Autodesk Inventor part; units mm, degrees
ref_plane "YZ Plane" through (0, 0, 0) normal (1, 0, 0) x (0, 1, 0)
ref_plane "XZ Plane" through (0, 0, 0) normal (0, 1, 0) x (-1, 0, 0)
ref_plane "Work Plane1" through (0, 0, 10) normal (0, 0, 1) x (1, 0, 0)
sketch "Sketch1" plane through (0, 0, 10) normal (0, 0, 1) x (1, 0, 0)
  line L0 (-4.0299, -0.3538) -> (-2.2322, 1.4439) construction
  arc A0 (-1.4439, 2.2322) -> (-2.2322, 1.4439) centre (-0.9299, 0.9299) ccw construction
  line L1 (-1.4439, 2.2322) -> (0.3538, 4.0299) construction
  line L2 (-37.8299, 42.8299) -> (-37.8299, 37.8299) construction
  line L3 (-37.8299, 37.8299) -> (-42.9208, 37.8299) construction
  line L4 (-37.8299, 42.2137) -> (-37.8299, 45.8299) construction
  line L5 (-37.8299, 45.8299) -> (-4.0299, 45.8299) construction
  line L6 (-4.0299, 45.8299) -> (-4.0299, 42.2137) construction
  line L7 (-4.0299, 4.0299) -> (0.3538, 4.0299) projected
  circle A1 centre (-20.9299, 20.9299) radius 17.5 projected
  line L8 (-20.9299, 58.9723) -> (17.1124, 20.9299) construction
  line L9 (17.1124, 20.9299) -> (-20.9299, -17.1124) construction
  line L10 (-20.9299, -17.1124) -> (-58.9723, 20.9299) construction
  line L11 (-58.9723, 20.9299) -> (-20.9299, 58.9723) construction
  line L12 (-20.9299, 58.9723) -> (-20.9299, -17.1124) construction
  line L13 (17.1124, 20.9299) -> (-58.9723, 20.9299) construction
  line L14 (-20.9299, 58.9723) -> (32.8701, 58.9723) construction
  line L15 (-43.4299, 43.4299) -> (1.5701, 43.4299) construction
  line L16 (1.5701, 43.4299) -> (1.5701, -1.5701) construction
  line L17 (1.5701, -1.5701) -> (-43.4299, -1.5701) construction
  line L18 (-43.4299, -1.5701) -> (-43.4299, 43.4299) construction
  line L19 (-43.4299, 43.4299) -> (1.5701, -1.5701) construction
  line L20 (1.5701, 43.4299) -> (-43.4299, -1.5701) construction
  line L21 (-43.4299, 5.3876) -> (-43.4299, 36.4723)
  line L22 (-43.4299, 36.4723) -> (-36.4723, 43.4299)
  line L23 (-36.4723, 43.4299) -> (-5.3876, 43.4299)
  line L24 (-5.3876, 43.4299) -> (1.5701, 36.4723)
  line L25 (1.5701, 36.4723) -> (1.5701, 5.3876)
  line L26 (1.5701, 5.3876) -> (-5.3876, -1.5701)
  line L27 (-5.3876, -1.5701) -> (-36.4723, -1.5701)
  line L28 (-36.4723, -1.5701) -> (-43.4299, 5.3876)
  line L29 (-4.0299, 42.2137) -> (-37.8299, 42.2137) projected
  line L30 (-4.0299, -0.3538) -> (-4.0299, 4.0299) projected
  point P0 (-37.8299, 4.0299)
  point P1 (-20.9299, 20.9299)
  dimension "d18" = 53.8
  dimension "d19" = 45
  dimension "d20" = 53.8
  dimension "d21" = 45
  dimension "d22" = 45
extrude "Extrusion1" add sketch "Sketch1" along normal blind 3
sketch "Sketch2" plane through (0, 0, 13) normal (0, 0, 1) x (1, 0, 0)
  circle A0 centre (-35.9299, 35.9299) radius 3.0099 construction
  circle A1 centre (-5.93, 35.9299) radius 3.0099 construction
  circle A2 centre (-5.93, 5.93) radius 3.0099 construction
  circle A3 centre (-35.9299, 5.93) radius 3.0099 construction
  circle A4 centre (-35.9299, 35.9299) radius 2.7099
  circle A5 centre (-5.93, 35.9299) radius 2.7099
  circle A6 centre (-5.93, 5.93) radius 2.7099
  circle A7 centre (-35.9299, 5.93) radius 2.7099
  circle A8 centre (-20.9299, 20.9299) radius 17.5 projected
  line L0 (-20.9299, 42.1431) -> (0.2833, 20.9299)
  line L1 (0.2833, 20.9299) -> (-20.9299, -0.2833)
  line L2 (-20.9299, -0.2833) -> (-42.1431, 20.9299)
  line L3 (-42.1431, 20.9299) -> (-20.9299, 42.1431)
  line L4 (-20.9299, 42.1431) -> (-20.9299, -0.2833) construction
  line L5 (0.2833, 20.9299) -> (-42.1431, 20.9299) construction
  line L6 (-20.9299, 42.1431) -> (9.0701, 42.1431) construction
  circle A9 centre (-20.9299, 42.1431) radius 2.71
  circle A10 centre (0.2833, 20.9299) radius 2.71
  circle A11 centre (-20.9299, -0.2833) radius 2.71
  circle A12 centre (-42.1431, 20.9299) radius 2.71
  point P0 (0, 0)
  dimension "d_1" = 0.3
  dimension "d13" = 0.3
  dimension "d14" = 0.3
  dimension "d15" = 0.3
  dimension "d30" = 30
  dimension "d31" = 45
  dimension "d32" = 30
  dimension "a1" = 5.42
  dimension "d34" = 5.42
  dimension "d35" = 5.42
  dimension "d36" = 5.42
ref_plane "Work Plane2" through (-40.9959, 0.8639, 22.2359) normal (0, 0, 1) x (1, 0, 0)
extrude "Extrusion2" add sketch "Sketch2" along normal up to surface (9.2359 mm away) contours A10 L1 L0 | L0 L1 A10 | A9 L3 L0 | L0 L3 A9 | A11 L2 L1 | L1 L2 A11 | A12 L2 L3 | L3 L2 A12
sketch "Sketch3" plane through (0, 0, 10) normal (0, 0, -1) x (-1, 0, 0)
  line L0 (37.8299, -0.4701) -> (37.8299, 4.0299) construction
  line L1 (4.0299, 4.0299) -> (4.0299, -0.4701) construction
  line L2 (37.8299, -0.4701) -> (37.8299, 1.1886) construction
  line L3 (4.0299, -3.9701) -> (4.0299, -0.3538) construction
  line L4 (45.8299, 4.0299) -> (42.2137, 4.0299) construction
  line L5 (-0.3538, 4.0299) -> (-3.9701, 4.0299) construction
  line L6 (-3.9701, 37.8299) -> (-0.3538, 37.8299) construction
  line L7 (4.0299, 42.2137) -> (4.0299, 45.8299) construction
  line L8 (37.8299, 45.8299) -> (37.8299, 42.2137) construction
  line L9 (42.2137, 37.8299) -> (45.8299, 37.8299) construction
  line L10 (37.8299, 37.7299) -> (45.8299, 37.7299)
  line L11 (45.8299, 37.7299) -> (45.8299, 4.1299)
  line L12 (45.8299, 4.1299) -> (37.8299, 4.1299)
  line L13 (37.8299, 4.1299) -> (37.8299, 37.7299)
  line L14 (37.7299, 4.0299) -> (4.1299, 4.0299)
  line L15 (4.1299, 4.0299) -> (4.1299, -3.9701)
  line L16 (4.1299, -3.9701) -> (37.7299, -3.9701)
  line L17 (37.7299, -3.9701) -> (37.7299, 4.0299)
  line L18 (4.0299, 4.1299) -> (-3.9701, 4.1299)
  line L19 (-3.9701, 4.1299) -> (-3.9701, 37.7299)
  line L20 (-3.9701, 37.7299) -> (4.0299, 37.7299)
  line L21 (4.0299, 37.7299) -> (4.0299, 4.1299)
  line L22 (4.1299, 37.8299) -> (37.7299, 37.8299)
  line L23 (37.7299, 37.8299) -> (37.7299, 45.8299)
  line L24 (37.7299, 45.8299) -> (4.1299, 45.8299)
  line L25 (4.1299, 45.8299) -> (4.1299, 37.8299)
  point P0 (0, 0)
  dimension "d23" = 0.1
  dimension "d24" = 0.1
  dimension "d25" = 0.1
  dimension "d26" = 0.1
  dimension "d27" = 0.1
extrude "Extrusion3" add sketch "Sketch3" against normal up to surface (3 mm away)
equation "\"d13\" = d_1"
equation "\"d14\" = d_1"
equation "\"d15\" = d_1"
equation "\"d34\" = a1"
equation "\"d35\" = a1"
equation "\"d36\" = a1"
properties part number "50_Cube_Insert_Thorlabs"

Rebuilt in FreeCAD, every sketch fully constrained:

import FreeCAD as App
import Part
import Sketcher

doc = App.newDocument("Part")
params = doc.addObject("Spreadsheet::Sheet", "Params")
for row, (alias, value) in enumerate([
    ("sketch1_diameter", "35 mm"),
    ("pad1_length", "3 mm"),
    ("sketch2_diameter", "5.42 mm"),
    ("pad2_length", "9.2359 mm"),
    ("sketch3_width", "8 mm"),
    ("sketch3_width2", "33.6 mm"),
    ("pad3_length", "3 mm"),
], start=1):
    params.set(f"A{row}", alias)
    params.set(f"B{row}", "=" + value)
    params.setAlias(f"B{row}", alias)

body = doc.addObject("PartDesign::Body", "Body")

sketch1 = doc.addObject("Sketcher::SketchObject", "Sketch")
body.addObject(sketch1)
sketch1.AttachmentSupport = (doc.XY_Plane, [""])
sketch1.MapMode = "FlatFace"
sketch1.AttachmentOffset = App.Placement(App.Vector(0, 0, 10), App.Rotation())
sketch1.addGeometry([
    Part.LineSegment(App.Vector(-5.3876, -1.5701, 0), App.Vector(1.5701, 5.3876, 0)),
    Part.LineSegment(App.Vector(1.5701, 5.3876, 0), App.Vector(1.5701, 36.4723, 0)),
    Part.LineSegment(App.Vector(1.5701, 36.4723, 0), App.Vector(-5.3876, 43.4299, 0)),
    Part.LineSegment(App.Vector(-5.3876, 43.4299, 0), App.Vector(-36.4723, 43.4299, 0)),
    Part.LineSegment(App.Vector(-36.4723, 43.4299, 0), App.Vector(-43.4299, 36.4723, 0)),
    Part.LineSegment(App.Vector(-43.4299, 36.4723, 0), App.Vector(-43.4299, 5.3876, 0)),
    Part.LineSegment(App.Vector(-43.4299, 5.3876, 0), App.Vector(-36.4723, -1.5701, 0)),
    Part.LineSegment(App.Vector(-36.4723, -1.5701, 0), App.Vector(-5.3876, -1.5701, 0)),
    Part.Circle(App.Vector(-20.9299, 20.9299, 0), App.Vector(0, 0, 1), 17.5),
], False)
sketch1.addConstraint([
    Sketcher.Constraint("Coincident", 0, 2, 1, 1),
    Sketcher.Constraint("Coincident", 1, 2, 2, 1),
    Sketcher.Constraint("Coincident", 2, 2, 3, 1),
    Sketcher.Constraint("Coincident", 3, 2, 4, 1),
    Sketcher.Constraint("Coincident", 4, 2, 5, 1),
    Sketcher.Constraint("Coincident", 5, 2, 6, 1),
    Sketcher.Constraint("Coincident", 6, 2, 7, 1),
    Sketcher.Constraint("Coincident", 7, 2, 0, 1),
    Sketcher.Constraint("Vertical", 1),
    Sketcher.Constraint("Horizontal", 3),
    Sketcher.Constraint("Vertical", 5),
    Sketcher.Constraint("Horizontal", 7),
    Sketcher.Constraint("Perpendicular", 0, 2),
    Sketcher.Constraint("Perpendicular", 2, 4),
    Sketcher.Constraint("Perpendicular", 4, 6),
    Sketcher.Constraint("Horizontal", 1, 2, 4, 2),
    Sketcher.Constraint("Horizontal", 0, 2, 5, 2),
    Sketcher.Constraint("Vertical", 3, 2, 6, 2),
    Sketcher.Constraint("Vertical", 2, 2, 7, 2),
    Sketcher.Constraint("Equal", 7, 1),
    Sketcher.Constraint("Diameter", 8, 35.0),
    Sketcher.Constraint("DistanceX", 4, 2, 1, 2, 45.0),
    Sketcher.Constraint("DistanceX", 8, 3, 0, 2, 22.5),
    Sketcher.Constraint("DistanceY", 8, 3, 2, 2, 22.5),
    Sketcher.Constraint("DistanceX", 8, 3, -1, 1, 20.93),
    Sketcher.Constraint("DistanceY", -1, 1, 8, 3, 20.93),
    Sketcher.Constraint("DistanceX", 3, 2, 3, 1, 31.0847),
])
sketch1.setExpression("Constraints[20]", "Params.sketch1_diameter")
pad1 = doc.addObject("PartDesign::Pad", "Pad")
body.addObject(pad1)
pad1.Profile = sketch1
pad1.setExpression("Length", "Params.pad1_length")

sketch2 = doc.addObject("Sketcher::SketchObject", "Sketch001")
body.addObject(sketch2)
sketch2.AttachmentSupport = (doc.XY_Plane, [""])
sketch2.MapMode = "FlatFace"
sketch2.AttachmentOffset = App.Placement(App.Vector(0, 0, 13), App.Rotation())
sketch2.addGeometry([
    Part.Circle(App.Vector(0.2833, 20.9299, 0), App.Vector(0, 0, 1), 2.71),
    Part.Circle(App.Vector(-20.9299, 42.1431, 0), App.Vector(0, 0, 1), 2.71),
    Part.Circle(App.Vector(-20.9299, -0.2833, 0), App.Vector(0, 0, 1), 2.71),
    Part.Circle(App.Vector(-42.1431, 20.9299, 0), App.Vector(0, 0, 1), 2.71),
], False)
sketch2.addConstraint([
    Sketcher.Constraint("Equal", 0, 1),
    Sketcher.Constraint("Equal", 1, 2),
    Sketcher.Constraint("Equal", 2, 3),
    Sketcher.Constraint("Horizontal", 0, 3, 3, 3),
    Sketcher.Constraint("Vertical", 1, 3, 2, 3),
    Sketcher.Constraint("Diameter", 0, 5.42),
    Sketcher.Constraint("DistanceY", -1, 1, 0, 3, 20.93),
    Sketcher.Constraint("DistanceX", 1, 3, -1, 1, 20.93),
    Sketcher.Constraint("DistanceY", -1, 1, 1, 3, 42.143),
    Sketcher.Constraint("DistanceX", 3, 3, -1, 1, 42.143),
    Sketcher.Constraint("DistanceX", -1, 1, 0, 3, 0.2833),
    Sketcher.Constraint("DistanceY", 2, 3, -1, 1, 0.2833),
])
sketch2.setExpression("Constraints[5]", "Params.sketch2_diameter")
pad2 = doc.addObject("PartDesign::Pad", "Pad001")
body.addObject(pad2)
pad2.Profile = sketch2
pad2.setExpression("Length", "Params.pad2_length")

sketch3 = doc.addObject("Sketcher::SketchObject", "Sketch002")
body.addObject(sketch3)
sketch3.AttachmentSupport = (doc.XY_Plane, [""])
sketch3.MapMode = "FlatFace"
sketch3.AttachmentOffset = App.Placement(App.Vector(0, 0, 10), App.Rotation())
sketch3.addGeometry([
    Part.LineSegment(App.Vector(-45.8299, 37.7299, 0), App.Vector(-37.8299, 37.7299, 0)),
    Part.LineSegment(App.Vector(-37.8299, 37.7299, 0), App.Vector(-37.8299, 4.1299, 0)),
    Part.LineSegment(App.Vector(-37.8299, 4.1299, 0), App.Vector(-45.8299, 4.1299, 0)),
    Part.LineSegment(App.Vector(-45.8299, 4.1299, 0), App.Vector(-45.8299, 37.7299, 0)),
    Part.LineSegment(App.Vector(-37.7299, -3.9701, 0), App.Vector(-37.7299, 4.0299, 0)),
    Part.LineSegment(App.Vector(-37.7299, 4.0299, 0), App.Vector(-4.1299, 4.0299, 0)),
    Part.LineSegment(App.Vector(-4.1299, 4.0299, 0), App.Vector(-4.1299, -3.9701, 0)),
    Part.LineSegment(App.Vector(-4.1299, -3.9701, 0), App.Vector(-37.7299, -3.9701, 0)),
    Part.LineSegment(App.Vector(3.9701, 4.1299, 0), App.Vector(-4.0299, 4.1299, 0)),
    Part.LineSegment(App.Vector(-4.0299, 4.1299, 0), App.Vector(-4.0299, 37.7299, 0)),
    Part.LineSegment(App.Vector(-4.0299, 37.7299, 0), App.Vector(3.9701, 37.7299, 0)),
    Part.LineSegment(App.Vector(3.9701, 37.7299, 0), App.Vector(3.9701, 4.1299, 0)),
    Part.LineSegment(App.Vector(-4.1299, 45.8299, 0), App.Vector(-4.1299, 37.8299, 0)),
    Part.LineSegment(App.Vector(-4.1299, 37.8299, 0), App.Vector(-37.7299, 37.8299, 0)),
    Part.LineSegment(App.Vector(-37.7299, 37.8299, 0), App.Vector(-37.7299, 45.8299, 0)),
    Part.LineSegment(App.Vector(-37.7299, 45.8299, 0), App.Vector(-4.1299, 45.8299, 0)),
], False)
sketch3.addConstraint([
    Sketcher.Constraint("Coincident", 0, 2, 1, 1),
    Sketcher.Constraint("Coincident", 1, 2, 2, 1),
    Sketcher.Constraint("Coincident", 2, 2, 3, 1),
    Sketcher.Constraint("Coincident", 3, 2, 0, 1),
    Sketcher.Constraint("Coincident", 4, 2, 5, 1),
    Sketcher.Constraint("Coincident", 5, 2, 6, 1),
    Sketcher.Constraint("Coincident", 6, 2, 7, 1),
    Sketcher.Constraint("Coincident", 7, 2, 4, 1),
    Sketcher.Constraint("Coincident", 8, 2, 9, 1),
    Sketcher.Constraint("Coincident", 9, 2, 10, 1),
    Sketcher.Constraint("Coincident", 10, 2, 11, 1),
    Sketcher.Constraint("Coincident", 11, 2, 8, 1),
    Sketcher.Constraint("Coincident", 12, 2, 13, 1),
    Sketcher.Constraint("Coincident", 13, 2, 14, 1),
    Sketcher.Constraint("Coincident", 14, 2, 15, 1),
    Sketcher.Constraint("Coincident", 15, 2, 12, 1),
    Sketcher.Constraint("Horizontal", 0),
    Sketcher.Constraint("Vertical", 1),
    Sketcher.Constraint("Horizontal", 2),
    Sketcher.Constraint("Vertical", 3),
    Sketcher.Constraint("Vertical", 4),
    Sketcher.Constraint("Horizontal", 5),
    Sketcher.Constraint("Vertical", 6),
    Sketcher.Constraint("Horizontal", 7),
    Sketcher.Constraint("Horizontal", 8),
    Sketcher.Constraint("Vertical", 9),
    Sketcher.Constraint("Horizontal", 10),
    Sketcher.Constraint("Vertical", 11),
    Sketcher.Constraint("Vertical", 12),
    Sketcher.Constraint("Horizontal", 13),
    Sketcher.Constraint("Vertical", 14),
    Sketcher.Constraint("Horizontal", 15),
    Sketcher.Constraint("Horizontal", 2, 2, 8, 2),
    Sketcher.Constraint("Horizontal", 3, 2, 9, 2),
    Sketcher.Constraint("Vertical", 6, 2, 12, 2),
    Sketcher.Constraint("Vertical", 7, 2, 13, 2),
    Sketcher.Constraint("Equal", 2, 8),
    Sketcher.Constraint("Equal", 15, 1),
    Sketcher.Constraint("Equal", 10, 4),
    Sketcher.Constraint("Equal", 6, 12),
    Sketcher.Constraint("DistanceX", 1, 2, 4, 2, 0.1),
    Sketcher.Constraint("DistanceY", 4, 2, 1, 2, 0.1),
    Sketcher.Constraint("DistanceX", 5, 2, 8, 2, 0.1),
    Sketcher.Constraint("DistanceY", 9, 2, 12, 2, 0.1),
    Sketcher.Constraint("DistanceX", 0, 1, 0, 2, 8.0),
    Sketcher.Constraint("DistanceX", 5, 1, 5, 2, 33.6),
    Sketcher.Constraint("DistanceX", 0, 2, -1, 1, 37.83),
    Sketcher.Constraint("DistanceY", -1, 1, 0, 2, 37.73),
])
sketch3.setExpression("Constraints[44]", "Params.sketch3_width")
sketch3.setExpression("Constraints[45]", "Params.sketch3_width2")
pad3 = doc.addObject("PartDesign::Pad", "Pad002")
body.addObject(pad3)
pad3.Profile = sketch3
pad3.setExpression("Length", "Params.pad3_length")

doc.recompute()
